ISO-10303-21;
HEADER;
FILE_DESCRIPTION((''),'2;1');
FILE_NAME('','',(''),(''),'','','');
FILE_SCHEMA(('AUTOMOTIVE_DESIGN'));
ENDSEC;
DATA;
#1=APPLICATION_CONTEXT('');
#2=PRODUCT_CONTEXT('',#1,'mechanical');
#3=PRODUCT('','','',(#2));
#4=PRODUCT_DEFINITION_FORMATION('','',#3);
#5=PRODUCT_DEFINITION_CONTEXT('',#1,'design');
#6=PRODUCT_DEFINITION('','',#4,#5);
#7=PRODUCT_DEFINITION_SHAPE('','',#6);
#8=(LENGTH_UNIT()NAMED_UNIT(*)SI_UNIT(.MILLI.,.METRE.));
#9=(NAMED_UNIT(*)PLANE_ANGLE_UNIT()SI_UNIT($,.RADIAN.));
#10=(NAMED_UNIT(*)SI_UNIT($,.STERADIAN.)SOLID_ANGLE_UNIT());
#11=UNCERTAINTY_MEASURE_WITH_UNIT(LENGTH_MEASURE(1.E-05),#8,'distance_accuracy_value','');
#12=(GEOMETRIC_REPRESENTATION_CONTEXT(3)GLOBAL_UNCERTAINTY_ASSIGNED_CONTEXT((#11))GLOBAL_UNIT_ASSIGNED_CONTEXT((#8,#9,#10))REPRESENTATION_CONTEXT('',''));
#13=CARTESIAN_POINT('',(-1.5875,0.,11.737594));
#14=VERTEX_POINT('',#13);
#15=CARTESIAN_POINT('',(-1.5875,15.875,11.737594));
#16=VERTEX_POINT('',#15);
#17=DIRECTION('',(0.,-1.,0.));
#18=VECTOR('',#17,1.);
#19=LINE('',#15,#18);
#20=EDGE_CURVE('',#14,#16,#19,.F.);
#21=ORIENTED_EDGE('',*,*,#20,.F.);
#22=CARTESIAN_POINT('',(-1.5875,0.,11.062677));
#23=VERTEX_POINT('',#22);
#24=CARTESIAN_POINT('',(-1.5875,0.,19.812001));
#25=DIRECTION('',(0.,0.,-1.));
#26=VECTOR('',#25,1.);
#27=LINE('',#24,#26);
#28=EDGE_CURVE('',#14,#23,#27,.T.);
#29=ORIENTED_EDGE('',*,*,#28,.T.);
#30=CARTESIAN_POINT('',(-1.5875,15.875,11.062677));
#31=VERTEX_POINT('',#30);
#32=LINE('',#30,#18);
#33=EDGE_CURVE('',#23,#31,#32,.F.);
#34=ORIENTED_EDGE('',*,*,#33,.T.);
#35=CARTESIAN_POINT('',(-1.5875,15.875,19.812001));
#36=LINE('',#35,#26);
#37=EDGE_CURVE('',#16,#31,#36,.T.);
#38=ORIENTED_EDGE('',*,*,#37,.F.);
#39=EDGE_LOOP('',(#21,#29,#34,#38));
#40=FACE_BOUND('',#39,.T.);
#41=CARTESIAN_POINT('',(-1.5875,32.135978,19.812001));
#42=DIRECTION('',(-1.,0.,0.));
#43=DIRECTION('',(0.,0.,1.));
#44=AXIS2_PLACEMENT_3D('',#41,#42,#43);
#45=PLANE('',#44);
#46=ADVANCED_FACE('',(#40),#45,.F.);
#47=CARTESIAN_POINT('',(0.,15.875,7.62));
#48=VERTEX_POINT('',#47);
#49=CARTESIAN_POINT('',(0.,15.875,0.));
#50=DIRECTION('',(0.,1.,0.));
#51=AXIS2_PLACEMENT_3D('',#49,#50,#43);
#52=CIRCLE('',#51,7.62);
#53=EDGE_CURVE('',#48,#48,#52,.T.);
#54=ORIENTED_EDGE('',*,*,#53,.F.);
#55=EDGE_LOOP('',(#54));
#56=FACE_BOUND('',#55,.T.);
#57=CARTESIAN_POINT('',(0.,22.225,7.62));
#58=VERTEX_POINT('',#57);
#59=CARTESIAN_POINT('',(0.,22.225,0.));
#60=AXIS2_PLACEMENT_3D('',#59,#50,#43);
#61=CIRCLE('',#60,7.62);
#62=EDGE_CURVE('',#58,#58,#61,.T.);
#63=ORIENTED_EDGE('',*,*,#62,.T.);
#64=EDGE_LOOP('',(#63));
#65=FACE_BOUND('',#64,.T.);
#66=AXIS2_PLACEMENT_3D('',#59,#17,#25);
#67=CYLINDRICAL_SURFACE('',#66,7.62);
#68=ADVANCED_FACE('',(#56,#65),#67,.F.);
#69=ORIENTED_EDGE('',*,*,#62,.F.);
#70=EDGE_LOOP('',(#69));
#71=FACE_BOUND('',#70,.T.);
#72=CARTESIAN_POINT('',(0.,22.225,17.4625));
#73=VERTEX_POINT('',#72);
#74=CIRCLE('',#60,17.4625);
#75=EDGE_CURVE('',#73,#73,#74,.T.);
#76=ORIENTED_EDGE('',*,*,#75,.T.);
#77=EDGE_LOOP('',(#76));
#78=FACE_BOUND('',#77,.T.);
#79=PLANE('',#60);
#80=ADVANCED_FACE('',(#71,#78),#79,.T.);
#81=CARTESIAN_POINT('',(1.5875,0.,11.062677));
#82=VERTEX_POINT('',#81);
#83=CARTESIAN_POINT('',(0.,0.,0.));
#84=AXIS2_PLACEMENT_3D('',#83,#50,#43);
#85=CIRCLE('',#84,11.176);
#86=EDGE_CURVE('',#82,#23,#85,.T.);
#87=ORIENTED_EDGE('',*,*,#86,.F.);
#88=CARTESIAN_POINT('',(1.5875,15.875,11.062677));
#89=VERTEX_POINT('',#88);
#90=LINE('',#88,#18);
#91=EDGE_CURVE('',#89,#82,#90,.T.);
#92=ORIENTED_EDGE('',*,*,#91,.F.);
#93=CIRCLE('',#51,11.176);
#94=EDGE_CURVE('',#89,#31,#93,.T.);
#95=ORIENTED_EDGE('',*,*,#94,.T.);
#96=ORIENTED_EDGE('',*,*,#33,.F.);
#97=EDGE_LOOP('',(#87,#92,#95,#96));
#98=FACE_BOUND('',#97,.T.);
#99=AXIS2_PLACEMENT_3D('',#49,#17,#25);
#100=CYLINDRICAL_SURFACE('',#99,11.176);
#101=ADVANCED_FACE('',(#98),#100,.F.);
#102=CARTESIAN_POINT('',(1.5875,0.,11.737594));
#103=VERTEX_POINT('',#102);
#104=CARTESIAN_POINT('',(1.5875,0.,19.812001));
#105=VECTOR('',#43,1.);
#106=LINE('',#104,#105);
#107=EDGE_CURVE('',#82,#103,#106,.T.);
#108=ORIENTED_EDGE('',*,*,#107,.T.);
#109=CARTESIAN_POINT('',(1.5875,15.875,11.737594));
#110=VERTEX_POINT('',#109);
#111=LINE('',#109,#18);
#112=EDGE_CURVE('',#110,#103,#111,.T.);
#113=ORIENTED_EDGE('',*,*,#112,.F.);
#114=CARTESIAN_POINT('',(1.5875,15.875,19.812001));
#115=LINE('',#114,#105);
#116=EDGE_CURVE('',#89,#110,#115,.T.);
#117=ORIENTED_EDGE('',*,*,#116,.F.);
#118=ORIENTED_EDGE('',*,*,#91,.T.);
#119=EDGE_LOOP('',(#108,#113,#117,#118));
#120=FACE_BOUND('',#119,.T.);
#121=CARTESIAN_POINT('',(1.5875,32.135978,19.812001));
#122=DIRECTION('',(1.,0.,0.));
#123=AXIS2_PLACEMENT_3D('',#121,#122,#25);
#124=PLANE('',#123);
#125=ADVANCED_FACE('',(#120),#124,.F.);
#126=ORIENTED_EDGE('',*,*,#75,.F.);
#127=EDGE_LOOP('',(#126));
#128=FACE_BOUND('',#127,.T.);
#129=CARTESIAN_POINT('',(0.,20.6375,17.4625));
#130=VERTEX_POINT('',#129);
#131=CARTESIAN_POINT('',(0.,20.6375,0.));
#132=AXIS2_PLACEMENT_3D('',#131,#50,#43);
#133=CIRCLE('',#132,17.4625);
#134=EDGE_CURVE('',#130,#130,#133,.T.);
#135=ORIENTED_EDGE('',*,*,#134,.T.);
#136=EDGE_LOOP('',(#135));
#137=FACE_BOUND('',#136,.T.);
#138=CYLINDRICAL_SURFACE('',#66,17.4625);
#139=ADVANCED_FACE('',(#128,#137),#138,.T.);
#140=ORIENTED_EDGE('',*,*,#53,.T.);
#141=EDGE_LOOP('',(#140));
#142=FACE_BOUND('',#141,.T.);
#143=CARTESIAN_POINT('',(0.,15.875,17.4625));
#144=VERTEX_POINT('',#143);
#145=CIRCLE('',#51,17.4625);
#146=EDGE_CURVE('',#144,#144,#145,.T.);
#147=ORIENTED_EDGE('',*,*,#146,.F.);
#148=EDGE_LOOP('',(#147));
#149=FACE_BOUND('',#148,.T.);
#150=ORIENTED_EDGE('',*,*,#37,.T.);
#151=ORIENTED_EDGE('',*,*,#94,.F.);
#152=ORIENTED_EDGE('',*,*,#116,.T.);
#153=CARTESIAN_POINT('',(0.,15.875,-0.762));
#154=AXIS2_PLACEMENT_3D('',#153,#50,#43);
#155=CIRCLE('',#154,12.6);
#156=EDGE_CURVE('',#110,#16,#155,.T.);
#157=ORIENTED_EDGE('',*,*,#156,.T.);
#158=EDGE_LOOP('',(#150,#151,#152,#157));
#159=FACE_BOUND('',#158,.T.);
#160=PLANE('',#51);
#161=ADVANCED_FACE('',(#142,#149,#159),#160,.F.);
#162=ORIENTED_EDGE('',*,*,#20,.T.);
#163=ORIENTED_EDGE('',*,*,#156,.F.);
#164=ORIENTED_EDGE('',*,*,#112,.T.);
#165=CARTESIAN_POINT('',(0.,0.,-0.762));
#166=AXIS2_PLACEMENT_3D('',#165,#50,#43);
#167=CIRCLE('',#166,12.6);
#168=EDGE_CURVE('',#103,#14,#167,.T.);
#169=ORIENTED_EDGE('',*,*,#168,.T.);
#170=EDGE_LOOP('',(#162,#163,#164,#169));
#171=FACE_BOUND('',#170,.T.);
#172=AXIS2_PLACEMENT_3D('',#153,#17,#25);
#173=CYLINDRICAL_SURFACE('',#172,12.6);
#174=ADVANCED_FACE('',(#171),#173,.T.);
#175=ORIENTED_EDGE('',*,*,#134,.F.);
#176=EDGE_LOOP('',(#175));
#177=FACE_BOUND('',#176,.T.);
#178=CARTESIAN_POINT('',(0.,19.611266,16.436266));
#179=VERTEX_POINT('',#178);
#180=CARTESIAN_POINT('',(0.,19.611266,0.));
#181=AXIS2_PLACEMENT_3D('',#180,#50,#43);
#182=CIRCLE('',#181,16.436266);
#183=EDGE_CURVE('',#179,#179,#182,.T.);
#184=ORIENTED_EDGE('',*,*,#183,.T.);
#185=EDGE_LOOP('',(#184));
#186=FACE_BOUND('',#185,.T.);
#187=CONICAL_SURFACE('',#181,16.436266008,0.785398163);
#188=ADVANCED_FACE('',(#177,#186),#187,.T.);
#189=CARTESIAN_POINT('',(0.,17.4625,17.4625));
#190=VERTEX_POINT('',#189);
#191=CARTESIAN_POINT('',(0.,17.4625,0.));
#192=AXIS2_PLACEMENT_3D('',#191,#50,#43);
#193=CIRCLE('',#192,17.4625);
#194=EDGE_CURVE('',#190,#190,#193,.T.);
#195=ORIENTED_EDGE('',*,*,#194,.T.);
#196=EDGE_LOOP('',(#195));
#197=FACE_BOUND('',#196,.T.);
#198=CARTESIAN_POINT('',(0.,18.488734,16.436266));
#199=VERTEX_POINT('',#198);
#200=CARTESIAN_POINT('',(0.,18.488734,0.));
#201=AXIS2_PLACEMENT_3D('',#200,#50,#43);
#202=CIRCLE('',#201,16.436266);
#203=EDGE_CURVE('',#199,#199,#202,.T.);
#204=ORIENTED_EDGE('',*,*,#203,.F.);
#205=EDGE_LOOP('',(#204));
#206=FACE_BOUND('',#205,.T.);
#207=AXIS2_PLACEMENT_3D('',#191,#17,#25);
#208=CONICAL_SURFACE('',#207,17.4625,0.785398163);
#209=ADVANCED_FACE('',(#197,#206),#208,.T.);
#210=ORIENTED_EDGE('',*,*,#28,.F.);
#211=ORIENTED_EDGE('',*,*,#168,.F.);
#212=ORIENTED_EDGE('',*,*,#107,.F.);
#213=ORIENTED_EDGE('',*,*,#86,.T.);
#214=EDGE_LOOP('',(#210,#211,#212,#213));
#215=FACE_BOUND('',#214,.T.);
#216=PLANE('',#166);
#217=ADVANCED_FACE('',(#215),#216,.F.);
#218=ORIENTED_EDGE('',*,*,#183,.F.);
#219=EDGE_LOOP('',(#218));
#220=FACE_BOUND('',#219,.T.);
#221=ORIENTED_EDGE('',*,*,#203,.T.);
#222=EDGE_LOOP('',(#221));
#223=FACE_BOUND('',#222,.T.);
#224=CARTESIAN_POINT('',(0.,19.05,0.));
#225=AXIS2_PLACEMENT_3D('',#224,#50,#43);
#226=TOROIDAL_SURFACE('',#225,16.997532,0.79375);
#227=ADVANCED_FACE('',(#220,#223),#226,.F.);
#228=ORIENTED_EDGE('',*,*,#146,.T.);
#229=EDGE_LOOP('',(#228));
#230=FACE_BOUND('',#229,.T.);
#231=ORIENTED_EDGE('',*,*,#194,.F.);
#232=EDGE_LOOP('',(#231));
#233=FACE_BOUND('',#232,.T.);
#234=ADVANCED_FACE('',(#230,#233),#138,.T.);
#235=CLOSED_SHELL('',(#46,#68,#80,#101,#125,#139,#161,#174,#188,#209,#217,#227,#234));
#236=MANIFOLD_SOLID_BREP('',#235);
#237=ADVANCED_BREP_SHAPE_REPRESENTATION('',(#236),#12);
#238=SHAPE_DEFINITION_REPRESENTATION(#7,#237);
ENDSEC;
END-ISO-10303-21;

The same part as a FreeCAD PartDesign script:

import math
import FreeCAD as App
import Part
import Sketcher
Q = App.Units.Quantity


def add_polygon(sketch, points):
    """Adds a closed chain of lines whose ends are joined by coincident constraints."""
    first, n = sketch.GeometryCount, len(points)
    for a, b in zip(points, points[1:] + points[:1]):
        sketch.addGeometry(Part.LineSegment(App.Vector(*a, 0), App.Vector(*b, 0)), False)
    for i in range(n):
        sketch.addConstraint(Sketcher.Constraint("Coincident", first + i, 2, first + (i + 1) % n, 1))

doc = App.newDocument("Part")
body = doc.addObject("PartDesign::Body", "Body")

# Sketch on XZ plane
sketch1 = body.newObject("Sketcher::SketchObject", "Sketch")
sketch1.AttachmentSupport = (doc.getObject("XZ_Plane"), [""])
sketch1.MapMode = "FlatFace"
sketch1.addGeometry([
    Part.Circle(App.Vector(0, -1, 0), App.Vector(0, 0, 1), 13),
    Part.Circle(App.Vector(0, 0, 0), App.Vector(0, 0, 1), 11),
], False)
sketch1.addConstraint([
    Sketcher.Constraint("Coincident", 1, 3, -1, 1),
    Sketcher.Constraint("PointOnObject", 0, 3, -2),
    Sketcher.Constraint("Diameter", 1, Q("0.88 in")),
    Sketcher.Constraint("Diameter", 0, 25.2),
    Sketcher.Constraint("DistanceY", 0, 3, -1, 1, Q("0.03 in")),
])
pad1 = body.newObject("PartDesign::Pad", "Pad")
pad1.Profile = sketch1
pad1.Length = Q("0.625 in")
pad1.Reversed = True

# Sketch on XZ plane
sketch2 = body.newObject("Sketcher::SketchObject", "Sketch001")
sketch2.AttachmentSupport = (doc.getObject("XZ_Plane"), [""])
sketch2.MapMode = "FlatFace"
sketch2.AttachmentOffset = App.Placement(App.Vector(0, 0, -0.625 * 25.4), App.Rotation())
sketch2.addGeometry([
    Part.Circle(App.Vector(0, 0, 0), App.Vector(0, 0, 1), 17),
    Part.Circle(App.Vector(0, 0, 0), App.Vector(0, 0, 1), 8),
], False)
sketch2.addConstraint([
    Sketcher.Constraint("Coincident", 0, 3, -1, 1),
    Sketcher.Constraint("Coincident", 1, 3, -1, 1),
    Sketcher.Constraint("Diameter", 1, Q("0.6 in")),
    Sketcher.Constraint("Diameter", 0, Q("1.375 in")),
])
pad2 = body.newObject("PartDesign::Pad", "Pad001")
pad2.Profile = sketch2
pad2.Length = Q("0.25 in")
pad2.Reversed = True

# Sketch on XY plane
sketch3 = body.newObject("Sketcher::SketchObject", "Sketch002")
sketch3.AttachmentSupport = (doc.getObject("XY_Plane"), [""])
sketch3.MapMode = "FlatFace"
sketch3.addGeometry([
    Part.LineSegment(App.Vector(-16.4, 19.6, 0), App.Vector(-17.5, 20.6, 0)),
    Part.LineSegment(App.Vector(-17.5, 20.6, 0), App.Vector(-17.5, 17.5, 0)),
    Part.LineSegment(App.Vector(-17.5, 17.5, 0), App.Vector(-16.4, 18.5, 0)),
    Part.ArcOfCircle(Part.Circle(App.Vector(-17, 19.1, 0), App.Vector(0, 0, 1), 0.8), math.radians(-45), math.radians(45)),
], False)
sketch3.addConstraint([
    Sketcher.Constraint("Coincident", 0, 2, 1, 1),
    Sketcher.Constraint("Coincident", 1, 2, 2, 1),
    Sketcher.Constraint("Tangent", 2, 2, 3, 1),
    Sketcher.Constraint("Tangent", 3, 2, 0, 1),
    Sketcher.Constraint("Vertical", 1),
    Sketcher.Constraint("Perpendicular", 0, 2),
    Sketcher.Constraint("Vertical", 2, 2, 3, 2),
    Sketcher.Constraint("Radius", 3, Q("0.03125 in")),
    Sketcher.Constraint("DistanceY", 1, 2, 1, 1, Q("0.125 in")),
    Sketcher.Constraint("DistanceY", -1, 1, 3, 3, Q("0.75 in")),
    Sketcher.Constraint("DistanceX", 0, 2, -1, 1, Q("0.6875 in")),
])
groove = body.newObject("PartDesign::Groove", "Groove")
groove.Profile = sketch3
groove.ReferenceAxis = (sketch3, ["V_Axis"])
groove.Angle = 360

# Sketch on XZ plane
sketch4 = body.newObject("Sketcher::SketchObject", "Sketch003")
sketch4.AttachmentSupport = (doc.getObject("XZ_Plane"), [""])
sketch4.MapMode = "FlatFace"
add_polygon(sketch4, [(-1.6, 19.8), (-1.6, 3.9), (1.6, 3.9), (1.6, 19.8)])  # lines 0-3
sketch4.addConstraint([
    Sketcher.Constraint("Vertical", 0),
    Sketcher.Constraint("Horizontal", 1),
    Sketcher.Constraint("Vertical", 2),
    Sketcher.Constraint("Horizontal", 3),
    Sketcher.Constraint("DistanceX", 1, 1, 1, 2, Q("0.125 in")),
    Sketcher.Constraint("DistanceY", -1, 1, 2, 2, Q("0.78 in")),
    Sketcher.Constraint("DistanceX", 0, 2, -1, 1, Q("0.0625 in")),
    Sketcher.Constraint("DistanceY", 0, 2, 0, 1, 15.948002),
])
pocket1 = body.newObject("PartDesign::Pocket", "Pocket")
pocket1.Profile = sketch4
pocket1.Length = Q("0.625 in")

doc.recompute()
